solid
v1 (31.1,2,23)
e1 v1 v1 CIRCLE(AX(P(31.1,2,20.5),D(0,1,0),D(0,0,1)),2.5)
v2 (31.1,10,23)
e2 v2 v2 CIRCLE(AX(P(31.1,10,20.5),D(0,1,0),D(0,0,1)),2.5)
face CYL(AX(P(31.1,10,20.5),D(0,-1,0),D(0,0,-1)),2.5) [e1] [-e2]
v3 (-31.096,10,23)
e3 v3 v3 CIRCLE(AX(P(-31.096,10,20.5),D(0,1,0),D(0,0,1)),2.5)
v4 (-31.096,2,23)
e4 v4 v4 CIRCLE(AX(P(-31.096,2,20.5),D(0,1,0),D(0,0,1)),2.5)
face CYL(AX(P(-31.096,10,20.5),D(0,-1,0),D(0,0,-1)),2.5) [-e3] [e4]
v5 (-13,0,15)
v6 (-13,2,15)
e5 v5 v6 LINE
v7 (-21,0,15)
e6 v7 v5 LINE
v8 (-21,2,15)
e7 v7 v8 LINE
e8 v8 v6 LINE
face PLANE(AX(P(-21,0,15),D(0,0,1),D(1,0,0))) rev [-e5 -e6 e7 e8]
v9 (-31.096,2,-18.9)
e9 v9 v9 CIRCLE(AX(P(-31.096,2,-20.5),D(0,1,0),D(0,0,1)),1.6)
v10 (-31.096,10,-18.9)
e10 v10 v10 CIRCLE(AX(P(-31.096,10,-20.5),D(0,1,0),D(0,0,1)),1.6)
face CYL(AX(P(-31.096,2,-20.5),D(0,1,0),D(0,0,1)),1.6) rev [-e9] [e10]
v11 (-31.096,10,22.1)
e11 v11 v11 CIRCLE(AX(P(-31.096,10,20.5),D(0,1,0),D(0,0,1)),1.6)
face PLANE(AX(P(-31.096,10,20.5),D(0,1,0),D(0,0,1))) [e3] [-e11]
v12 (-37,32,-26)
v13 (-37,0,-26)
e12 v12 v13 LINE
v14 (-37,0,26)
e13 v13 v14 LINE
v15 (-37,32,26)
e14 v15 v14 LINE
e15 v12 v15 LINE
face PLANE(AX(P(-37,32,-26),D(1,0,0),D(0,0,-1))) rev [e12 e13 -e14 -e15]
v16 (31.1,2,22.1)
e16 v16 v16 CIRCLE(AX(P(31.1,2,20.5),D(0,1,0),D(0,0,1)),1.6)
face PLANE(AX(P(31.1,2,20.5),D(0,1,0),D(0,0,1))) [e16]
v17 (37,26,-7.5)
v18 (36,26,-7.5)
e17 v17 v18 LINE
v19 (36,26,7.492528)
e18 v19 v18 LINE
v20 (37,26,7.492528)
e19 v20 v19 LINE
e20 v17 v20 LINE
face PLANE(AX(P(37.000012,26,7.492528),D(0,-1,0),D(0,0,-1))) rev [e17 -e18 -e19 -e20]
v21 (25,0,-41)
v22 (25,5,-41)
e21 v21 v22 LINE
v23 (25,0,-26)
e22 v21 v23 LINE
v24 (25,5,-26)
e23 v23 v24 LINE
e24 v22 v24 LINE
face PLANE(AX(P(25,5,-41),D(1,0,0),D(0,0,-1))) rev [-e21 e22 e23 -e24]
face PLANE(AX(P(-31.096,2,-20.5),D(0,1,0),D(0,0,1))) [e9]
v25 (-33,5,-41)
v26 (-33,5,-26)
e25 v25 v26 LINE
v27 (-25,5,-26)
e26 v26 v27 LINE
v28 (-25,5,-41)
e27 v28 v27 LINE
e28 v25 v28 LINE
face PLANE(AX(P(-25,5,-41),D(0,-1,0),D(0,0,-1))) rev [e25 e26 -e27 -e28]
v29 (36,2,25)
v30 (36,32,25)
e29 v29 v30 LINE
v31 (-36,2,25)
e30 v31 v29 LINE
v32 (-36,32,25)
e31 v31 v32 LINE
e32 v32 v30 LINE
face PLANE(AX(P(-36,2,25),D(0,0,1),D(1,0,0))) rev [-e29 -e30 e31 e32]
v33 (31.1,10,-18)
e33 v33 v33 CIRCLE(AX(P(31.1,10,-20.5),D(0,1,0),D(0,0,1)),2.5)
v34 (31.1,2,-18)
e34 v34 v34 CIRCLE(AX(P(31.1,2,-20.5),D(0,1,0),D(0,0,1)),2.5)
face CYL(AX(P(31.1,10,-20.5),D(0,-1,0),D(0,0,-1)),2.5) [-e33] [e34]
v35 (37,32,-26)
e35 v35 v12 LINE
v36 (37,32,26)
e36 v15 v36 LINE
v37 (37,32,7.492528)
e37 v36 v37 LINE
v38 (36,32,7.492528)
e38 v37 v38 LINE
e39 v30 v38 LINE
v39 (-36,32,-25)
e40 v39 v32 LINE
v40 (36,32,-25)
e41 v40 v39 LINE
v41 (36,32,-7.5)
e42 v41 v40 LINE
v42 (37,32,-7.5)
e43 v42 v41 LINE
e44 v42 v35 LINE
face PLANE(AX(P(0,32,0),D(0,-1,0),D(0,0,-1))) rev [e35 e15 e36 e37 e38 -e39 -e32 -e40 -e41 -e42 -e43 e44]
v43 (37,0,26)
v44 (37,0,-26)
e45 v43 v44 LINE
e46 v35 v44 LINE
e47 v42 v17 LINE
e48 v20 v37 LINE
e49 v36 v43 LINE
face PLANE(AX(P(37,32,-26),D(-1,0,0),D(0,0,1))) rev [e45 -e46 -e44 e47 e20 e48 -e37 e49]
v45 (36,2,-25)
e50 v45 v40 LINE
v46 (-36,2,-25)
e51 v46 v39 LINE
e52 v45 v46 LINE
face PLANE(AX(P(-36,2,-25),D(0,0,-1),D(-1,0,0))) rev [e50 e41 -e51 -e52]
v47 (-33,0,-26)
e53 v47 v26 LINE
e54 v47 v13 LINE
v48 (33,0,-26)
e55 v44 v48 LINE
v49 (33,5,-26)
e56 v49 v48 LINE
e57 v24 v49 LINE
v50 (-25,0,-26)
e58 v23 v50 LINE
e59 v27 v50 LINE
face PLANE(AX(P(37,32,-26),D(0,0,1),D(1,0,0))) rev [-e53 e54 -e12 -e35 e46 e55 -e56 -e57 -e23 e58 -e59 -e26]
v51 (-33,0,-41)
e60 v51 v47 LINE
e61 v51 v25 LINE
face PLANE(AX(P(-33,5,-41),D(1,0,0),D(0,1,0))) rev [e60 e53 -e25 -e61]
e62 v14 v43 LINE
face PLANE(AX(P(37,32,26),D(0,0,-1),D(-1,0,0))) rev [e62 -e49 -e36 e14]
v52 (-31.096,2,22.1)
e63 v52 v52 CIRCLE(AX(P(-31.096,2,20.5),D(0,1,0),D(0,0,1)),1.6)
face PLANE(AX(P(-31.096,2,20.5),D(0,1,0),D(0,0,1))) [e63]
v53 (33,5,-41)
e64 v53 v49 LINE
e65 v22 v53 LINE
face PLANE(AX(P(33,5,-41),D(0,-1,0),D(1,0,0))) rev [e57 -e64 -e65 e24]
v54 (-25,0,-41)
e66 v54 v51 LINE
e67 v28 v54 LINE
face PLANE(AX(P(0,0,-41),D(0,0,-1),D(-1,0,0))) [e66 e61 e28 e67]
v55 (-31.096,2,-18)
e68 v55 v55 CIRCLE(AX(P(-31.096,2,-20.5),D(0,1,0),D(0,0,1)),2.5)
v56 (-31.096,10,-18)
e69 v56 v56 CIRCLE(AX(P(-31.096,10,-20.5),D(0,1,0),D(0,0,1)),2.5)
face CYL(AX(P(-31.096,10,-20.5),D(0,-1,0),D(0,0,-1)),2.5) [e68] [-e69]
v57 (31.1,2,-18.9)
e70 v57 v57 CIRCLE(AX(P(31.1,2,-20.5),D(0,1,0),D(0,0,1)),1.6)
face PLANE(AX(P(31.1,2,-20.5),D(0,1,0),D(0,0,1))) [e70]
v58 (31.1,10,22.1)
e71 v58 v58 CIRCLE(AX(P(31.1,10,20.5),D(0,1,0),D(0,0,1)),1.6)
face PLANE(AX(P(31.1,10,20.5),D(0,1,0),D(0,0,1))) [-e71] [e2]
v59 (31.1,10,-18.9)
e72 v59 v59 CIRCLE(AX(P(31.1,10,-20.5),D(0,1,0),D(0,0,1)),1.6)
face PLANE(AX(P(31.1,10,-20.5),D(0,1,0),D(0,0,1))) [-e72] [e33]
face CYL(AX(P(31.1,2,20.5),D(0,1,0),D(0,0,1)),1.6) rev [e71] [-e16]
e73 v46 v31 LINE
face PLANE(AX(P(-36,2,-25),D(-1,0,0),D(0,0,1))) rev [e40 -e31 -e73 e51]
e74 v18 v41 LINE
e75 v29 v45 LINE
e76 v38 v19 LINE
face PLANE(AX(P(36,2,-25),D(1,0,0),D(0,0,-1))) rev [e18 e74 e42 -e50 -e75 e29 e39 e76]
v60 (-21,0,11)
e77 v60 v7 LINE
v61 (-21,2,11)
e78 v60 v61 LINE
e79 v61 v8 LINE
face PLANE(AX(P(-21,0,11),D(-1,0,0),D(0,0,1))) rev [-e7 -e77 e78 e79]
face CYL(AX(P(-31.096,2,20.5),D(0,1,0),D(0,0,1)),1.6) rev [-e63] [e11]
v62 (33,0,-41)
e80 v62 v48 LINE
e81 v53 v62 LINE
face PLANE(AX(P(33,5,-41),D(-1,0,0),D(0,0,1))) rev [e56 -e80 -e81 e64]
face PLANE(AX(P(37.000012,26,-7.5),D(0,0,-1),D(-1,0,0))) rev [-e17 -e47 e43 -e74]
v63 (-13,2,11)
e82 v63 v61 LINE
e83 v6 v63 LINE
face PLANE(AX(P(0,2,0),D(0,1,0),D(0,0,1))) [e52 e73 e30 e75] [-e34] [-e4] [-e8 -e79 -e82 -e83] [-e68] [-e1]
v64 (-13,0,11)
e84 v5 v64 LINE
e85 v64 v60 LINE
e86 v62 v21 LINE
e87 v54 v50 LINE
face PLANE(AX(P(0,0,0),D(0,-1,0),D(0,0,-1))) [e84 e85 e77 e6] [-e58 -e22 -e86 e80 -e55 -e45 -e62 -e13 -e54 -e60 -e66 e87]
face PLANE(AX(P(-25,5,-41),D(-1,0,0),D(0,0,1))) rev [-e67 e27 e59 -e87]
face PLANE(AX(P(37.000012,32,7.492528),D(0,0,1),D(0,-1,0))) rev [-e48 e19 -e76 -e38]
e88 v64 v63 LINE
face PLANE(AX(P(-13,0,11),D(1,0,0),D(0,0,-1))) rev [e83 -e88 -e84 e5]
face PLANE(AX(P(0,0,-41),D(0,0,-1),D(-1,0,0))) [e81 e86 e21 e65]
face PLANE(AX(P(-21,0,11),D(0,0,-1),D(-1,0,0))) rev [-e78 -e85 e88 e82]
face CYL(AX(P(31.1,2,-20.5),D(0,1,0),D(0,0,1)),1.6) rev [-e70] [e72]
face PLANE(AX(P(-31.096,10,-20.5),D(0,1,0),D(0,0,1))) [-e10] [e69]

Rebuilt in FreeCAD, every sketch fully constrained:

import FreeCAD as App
import Part
import Sketcher

V = App.Vector

doc = App.newDocument("Part")
body = doc.addObject("PartDesign::Body", "Body")

# Sketch on XZ plane
sketch1 = body.newObject("Sketcher::SketchObject", "Sketch")
sketch1.AttachmentSupport = (doc.getObject("XZ_Plane"), [""])
sketch1.MapMode = "FlatFace"
sketch1.addGeometry(Part.LineSegment(V(-37, -26, 0), V(-37, 26, 0)), False)
sketch1.addGeometry(Part.LineSegment(V(-37, 26, 0), V(37, 26, 0)), False)
sketch1.addGeometry(Part.LineSegment(V(37, 26, 0), V(37, -26, 0)), False)
sketch1.addGeometry(Part.LineSegment(V(37, -26, 0), V(-37, -26, 0)), False)
sketch1.addConstraint(Sketcher.Constraint("Coincident", 0, 2, 1, 1))
sketch1.addConstraint(Sketcher.Constraint("Coincident", 1, 2, 2, 1))
sketch1.addConstraint(Sketcher.Constraint("Coincident", 2, 2, 3, 1))
sketch1.addConstraint(Sketcher.Constraint("Coincident", 3, 2, 0, 1))
sketch1.addConstraint(Sketcher.Constraint("Vertical", 0))
sketch1.addConstraint(Sketcher.Constraint("Horizontal", 1))
sketch1.addConstraint(Sketcher.Constraint("Vertical", 2))
sketch1.addConstraint(Sketcher.Constraint("Horizontal", 3))
sketch1.addConstraint(Sketcher.Constraint("Symmetric", 0, 2, 2, 2, -1, 1))
sketch1.addConstraint(Sketcher.Constraint("DistanceX", 1, 1, 1, 2, 74.0))
sketch1.addConstraint(Sketcher.Constraint("DistanceY", 0, 1, 0, 2, 52.0))
pad1 = body.newObject("PartDesign::Pad", "Pad")
pad1.Profile = sketch1
pad1.Length = 32
pad1.Reversed = True

# Sketch on XZ plane
sketch2 = body.newObject("Sketcher::SketchObject", "Sketch001")
sketch2.AttachmentSupport = (doc.getObject("XZ_Plane"), [""])
sketch2.MapMode = "FlatFace"
sketch2.AttachmentOffset = App.Placement(V(0, 0, -32), App.Rotation())
sketch2.addGeometry(Part.LineSegment(V(-36, -25, 0), V(-36, 25, 0)), False)
sketch2.addGeometry(Part.LineSegment(V(-36, 25, 0), V(36, 25, 0)), False)
sketch2.addGeometry(Part.LineSegment(V(36, 25, 0), V(36, -25, 0)), False)
sketch2.addGeometry(Part.LineSegment(V(36, -25, 0), V(-36, -25, 0)), False)
sketch2.addConstraint(Sketcher.Constraint("Coincident", 0, 2, 1, 1))
sketch2.addConstraint(Sketcher.Constraint("Coincident", 1, 2, 2, 1))
sketch2.addConstraint(Sketcher.Constraint("Coincident", 2, 2, 3, 1))
sketch2.addConstraint(Sketcher.Constraint("Coincident", 3, 2, 0, 1))
sketch2.addConstraint(Sketcher.Constraint("Vertical", 0))
sketch2.addConstraint(Sketcher.Constraint("Horizontal", 1))
sketch2.addConstraint(Sketcher.Constraint("Vertical", 2))
sketch2.addConstraint(Sketcher.Constraint("Horizontal", 3))
sketch2.addConstraint(Sketcher.Constraint("Symmetric", 0, 2, 2, 2, -1, 1))
sketch2.addConstraint(Sketcher.Constraint("DistanceX", 1, 1, 1, 2, 72.0))
sketch2.addConstraint(Sketcher.Constraint("DistanceY", 0, 1, 0, 2, 50.0))
pocket1 = body.newObject("PartDesign::Pocket", "Pocket")
pocket1.Profile = sketch2
pocket1.Length = 30
pocket1.Reversed = True

# Sketch on XZ plane
sketch3 = body.newObject("Sketcher::SketchObject", "Sketch002")
sketch3.AttachmentSupport = (doc.getObject("XZ_Plane"), [""])
sketch3.MapMode = "FlatFace"
sketch3.AttachmentOffset = App.Placement(V(0, 0, -2), App.Rotation())
sketch3.addGeometry(Part.Circle(V(-31.1, -20.5, 0), V(0, 0, 1), 2.5), False)
sketch3.addGeometry(Part.Circle(V(-31.1, 20.5, 0), V(0, 0, 1), 2.5), False)
sketch3.addGeometry(Part.Circle(V(31.1, -20.5, 0), V(0, 0, 1), 2.5), False)
sketch3.addGeometry(Part.Circle(V(31.1, 20.5, 0), V(0, 0, 1), 2.5), False)
sketch3.addConstraint(Sketcher.Constraint("Equal", 0, 1))
sketch3.addConstraint(Sketcher.Constraint("Equal", 1, 2))
sketch3.addConstraint(Sketcher.Constraint("Equal", 2, 3))
sketch3.addConstraint(Sketcher.Constraint("Symmetric", 0, 3, 1, 3, -1))
sketch3.addConstraint(Sketcher.Constraint("Symmetric", 2, 3, 3, 3, -1))
sketch3.addConstraint(Sketcher.Constraint("Horizontal", 0, 3, 2, 3))
sketch3.addConstraint(Sketcher.Constraint("Diameter", 0, 5.0))
sketch3.addConstraint(Sketcher.Constraint("DistanceY", 0, 3, 1, 3, 41.0))
sketch3.addConstraint(Sketcher.Constraint("DistanceX", -1, 1, 2, 3, 31.1))
sketch3.addConstraint(Sketcher.Constraint("DistanceX", 0, 3, -1, 1, 31.096))
pad2 = body.newObject("PartDesign::Pad", "Pad001")
pad2.Profile = sketch3
pad2.Length = 8
pad2.Reversed = True

# Sketch on XZ plane
sketch4 = body.newObject("Sketcher::SketchObject", "Sketch003")
sketch4.AttachmentSupport = (doc.getObject("XZ_Plane"), [""])
sketch4.MapMode = "FlatFace"
sketch4.AttachmentOffset = App.Placement(V(0, 0, -10), App.Rotation())
sketch4.addGeometry(Part.Circle(V(-31.1, -20.5, 0), V(0, 0, 1), 1.6), False)
sketch4.addGeometry(Part.Circle(V(-31.1, 20.5, 0), V(0, 0, 1), 1.6), False)
sketch4.addGeometry(Part.Circle(V(31.1, 20.5, 0), V(0, 0, 1), 1.6), False)
sketch4.addGeometry(Part.Circle(V(31.1, -20.5, 0), V(0, 0, 1), 1.6), False)
sketch4.addConstraint(Sketcher.Constraint("Equal", 0, 1))
sketch4.addConstraint(Sketcher.Constraint("Equal", 1, 2))
sketch4.addConstraint(Sketcher.Constraint("Equal", 2, 3))
sketch4.addConstraint(Sketcher.Constraint("Symmetric", 0, 3, 1, 3, -1))
sketch4.addConstraint(Sketcher.Constraint("Symmetric", 2, 3, 3, 3, -1))
sketch4.addConstraint(Sketcher.Constraint("Horizontal", 1, 3, 2, 3))
sketch4.addConstraint(Sketcher.Constraint("Diameter", 0, 3.2))
sketch4.addConstraint(Sketcher.Constraint("DistanceY", 0, 3, 1, 3, 41.0))
sketch4.addConstraint(Sketcher.Constraint("DistanceX", -1, 1, 2, 3, 31.1))
sketch4.addConstraint(Sketcher.Constraint("DistanceX", 0, 3, -1, 1, 31.096))
pocket2 = body.newObject("PartDesign::Pocket", "Pocket001")
pocket2.Profile = sketch4
pocket2.Length = 8
pocket2.Reversed = True

# Sketch on YZ plane
sketch5 = body.newObject("Sketcher::SketchObject", "Sketch004")
sketch5.AttachmentSupport = (doc.getObject("YZ_Plane"), [""])
sketch5.MapMode = "FlatFace"
sketch5.AttachmentOffset = App.Placement(V(0, 0, 37), App.Rotation())
sketch5.addGeometry(Part.LineSegment(V(32, 7, 0), V(32, -8, 0)), False)
sketch5.addGeometry(Part.LineSegment(V(32, -8, 0), V(26, -8, 0)), False)
sketch5.addGeometry(Part.LineSegment(V(26, -8, 0), V(26, 7, 0)), False)
sketch5.addGeometry(Part.LineSegment(V(26, 7, 0), V(32, 7, 0)), False)
sketch5.addConstraint(Sketcher.Constraint("Coincident", 0, 2, 1, 1))
sketch5.addConstraint(Sketcher.Constraint("Coincident", 1, 2, 2, 1))
sketch5.addConstraint(Sketcher.Constraint("Coincident", 2, 2, 3, 1))
sketch5.addConstraint(Sketcher.Constraint("Coincident", 3, 2, 0, 1))
sketch5.addConstraint(Sketcher.Constraint("Vertical", 0))
sketch5.addConstraint(Sketcher.Constraint("Horizontal", 1))
sketch5.addConstraint(Sketcher.Constraint("Vertical", 2))
sketch5.addConstraint(Sketcher.Constraint("Horizontal", 3))
sketch5.addConstraint(Sketcher.Constraint("DistanceX", 1, 2, 1, 1, 6.0))
sketch5.addConstraint(Sketcher.Constraint("DistanceX", -1, 1, 0, 2, 32.0))
sketch5.addConstraint(Sketcher.Constraint("DistanceY", 0, 2, -1, 1, 7.5))
sketch5.addConstraint(Sketcher.Constraint("DistanceY", 0, 2, 0, 1, 14.992528))
pocket3 = body.newObject("PartDesign::Pocket", "Pocket002")
pocket3.Profile = sketch5
pocket3.Type = "UpToFirst"

# Sketch on YZ plane
sketch6 = body.newObject("Sketcher::SketchObject", "Sketch005")
sketch6.AttachmentSupport = (doc.getObject("YZ_Plane"), [""])
sketch6.MapMode = "FlatFace"
sketch6.AttachmentOffset = App.Placement(V(0, 0, 37), App.Rotation())
sketch6.addGeometry(Part.LineSegment(V(32, 7, 0), V(32, -8, 0)), False)
sketch6.addGeometry(Part.LineSegment(V(32, -8, 0), V(26, -8, 0)), False)
sketch6.addGeometry(Part.LineSegment(V(26, -8, 0), V(26, 7, 0)), False)
sketch6.addGeometry(Part.LineSegment(V(26, 7, 0), V(32, 7, 0)), False)
sketch6.addConstraint(Sketcher.Constraint("Coincident", 0, 2, 1, 1))
sketch6.addConstraint(Sketcher.Constraint("Coincident", 1, 2, 2, 1))
sketch6.addConstraint(Sketcher.Constraint("Coincident", 2, 2, 3, 1))
sketch6.addConstraint(Sketcher.Constraint("Coincident", 3, 2, 0, 1))
sketch6.addConstraint(Sketcher.Constraint("Vertical", 0))
sketch6.addConstraint(Sketcher.Constraint("Horizontal", 1))
sketch6.addConstraint(Sketcher.Constraint("Vertical", 2))
sketch6.addConstraint(Sketcher.Constraint("Horizontal", 3))
sketch6.addConstraint(Sketcher.Constraint("DistanceX", 1, 2, 1, 1, 6.0))
sketch6.addConstraint(Sketcher.Constraint("DistanceX", -1, 1, 0, 2, 32.0))
sketch6.addConstraint(Sketcher.Constraint("DistanceY", 0, 2, -1, 1, 7.5))
sketch6.addConstraint(Sketcher.Constraint("DistanceY", 0, 2, 0, 1, 14.992528))
pocket4 = body.newObject("PartDesign::Pocket", "Pocket003")
pocket4.Profile = sketch6
pocket4.Length = 85.711274
pocket4.Reversed = True

# Sketch on XZ plane
sketch7 = body.newObject("Sketcher::SketchObject", "Sketch006")
sketch7.AttachmentSupport = (doc.getObject("XZ_Plane"), [""])
sketch7.MapMode = "FlatFace"
sketch7.AttachmentOffset = App.Placement(V(0, 0, -2), App.Rotation())
sketch7.addGeometry(Part.LineSegment(V(-21, 11, 0), V(-21, 15, 0)), False)
sketch7.addGeometry(Part.LineSegment(V(-21, 15, 0), V(-13, 15, 0)), False)
sketch7.addGeometry(Part.LineSegment(V(-13, 15, 0), V(-13, 11, 0)), False)
sketch7.addGeometry(Part.LineSegment(V(-13, 11, 0), V(-21, 11, 0)), False)
sketch7.addConstraint(Sketcher.Constraint("Coincident", 0, 2, 1, 1))
sketch7.addConstraint(Sketcher.Constraint("Coincident", 1, 2, 2, 1))
sketch7.addConstraint(Sketcher.Constraint("Coincident", 2, 2, 3, 1))
sketch7.addConstraint(Sketcher.Constraint("Coincident", 3, 2, 0, 1))
sketch7.addConstraint(Sketcher.Constraint("Vertical", 0))
sketch7.addConstraint(Sketcher.Constraint("Horizontal", 1))
sketch7.addConstraint(Sketcher.Constraint("Vertical", 2))
sketch7.addConstraint(Sketcher.Constraint("Horizontal", 3))
sketch7.addConstraint(Sketcher.Constraint("DistanceX", 1, 1, 1, 2, 8.0))
sketch7.addConstraint(Sketcher.Constraint("DistanceY", 0, 1, 0, 2, 4.0))
sketch7.addConstraint(Sketcher.Constraint("DistanceX", 0, 2, -1, 1, 21.0))
sketch7.addConstraint(Sketcher.Constraint("DistanceY", -1, 1, 0, 2, 15.0))
pocket5 = body.newObject("PartDesign::Pocket", "Pocket004")
pocket5.Profile = sketch7
pocket5.Type = "ThroughAll"
pocket5.Reversed = True

# Sketch on XY plane
sketch8 = body.newObject("Sketcher::SketchObject", "Sketch007")
sketch8.AttachmentSupport = (doc.getObject("XY_Plane"), [""])
sketch8.MapMode = "FlatFace"
sketch8.AttachmentOffset = App.Placement(V(0, 0, -26), App.Rotation())
sketch8.addGeometry(Part.LineSegment(V(33, 5, 0), V(33, 0, 0)), False)
sketch8.addGeometry(Part.LineSegment(V(33, 0, 0), V(25, 0, 0)), False)
sketch8.addGeometry(Part.LineSegment(V(25, 0, 0), V(25, 5, 0)), False)
sketch8.addGeometry(Part.LineSegment(V(25, 5, 0), V(33, 5, 0)), False)
sketch8.addGeometry(Part.LineSegment(V(-25, 5, 0), V(-25, 0, 0)), False)
sketch8.addGeometry(Part.LineSegment(V(-25, 0, 0), V(-33, 0, 0)), False)
sketch8.addGeometry(Part.LineSegment(V(-33, 0, 0), V(-33, 5, 0)), False)
sketch8.addGeometry(Part.LineSegment(V(-33, 5, 0), V(-25, 5, 0)), False)
sketch8.addConstraint(Sketcher.Constraint("Coincident", 0, 2, 1, 1))
sketch8.addConstraint(Sketcher.Constraint("Coincident", 1, 2, 2, 1))
sketch8.addConstraint(Sketcher.Constraint("Coincident", 2, 2, 3, 1))
sketch8.addConstraint(Sketcher.Constraint("Coincident", 3, 2, 0, 1))
sketch8.addConstraint(Sketcher.Constraint("Coincident", 4, 2, 5, 1))
sketch8.addConstraint(Sketcher.Constraint("Coincident", 5, 2, 6, 1))
sketch8.addConstraint(Sketcher.Constraint("Coincident", 6, 2, 7, 1))
sketch8.addConstraint(Sketcher.Constraint("Coincident", 7, 2, 4, 1))
sketch8.addConstraint(Sketcher.Constraint("Vertical", 0))
sketch8.addConstraint(Sketcher.Constraint("Horizontal", 1))
sketch8.addConstraint(Sketcher.Constraint("Vertical", 2))
sketch8.addConstraint(Sketcher.Constraint("Horizontal", 3))
sketch8.addConstraint(Sketcher.Constraint("Vertical", 4))
sketch8.addConstraint(Sketcher.Constraint("Horizontal", 5))
sketch8.addConstraint(Sketcher.Constraint("Vertical", 6))
sketch8.addConstraint(Sketcher.Constraint("Horizontal", 7))
sketch8.addConstraint(Sketcher.Constraint("Symmetric", 1, 2, 4, 2, -1, 1))
sketch8.addConstraint(Sketcher.Constraint("Symmetric", 0, 2, 5, 2, -2))
sketch8.addConstraint(Sketcher.Constraint("Horizontal", 3, 2, 6, 2))
sketch8.addConstraint(Sketcher.Constraint("DistanceX", 1, 2, 1, 1, 8.0))
sketch8.addConstraint(Sketcher.Constraint("DistanceY", 0, 2, 0, 1, 5.0))
sketch8.addConstraint(Sketcher.Constraint("DistanceX", -1, 1, 0, 2, 33.0))
pad3 = body.newObject("PartDesign::Pad", "Pad002")
pad3.Profile = sketch8
pad3.Length = 15
pad3.Reversed = True

doc.recompute()
